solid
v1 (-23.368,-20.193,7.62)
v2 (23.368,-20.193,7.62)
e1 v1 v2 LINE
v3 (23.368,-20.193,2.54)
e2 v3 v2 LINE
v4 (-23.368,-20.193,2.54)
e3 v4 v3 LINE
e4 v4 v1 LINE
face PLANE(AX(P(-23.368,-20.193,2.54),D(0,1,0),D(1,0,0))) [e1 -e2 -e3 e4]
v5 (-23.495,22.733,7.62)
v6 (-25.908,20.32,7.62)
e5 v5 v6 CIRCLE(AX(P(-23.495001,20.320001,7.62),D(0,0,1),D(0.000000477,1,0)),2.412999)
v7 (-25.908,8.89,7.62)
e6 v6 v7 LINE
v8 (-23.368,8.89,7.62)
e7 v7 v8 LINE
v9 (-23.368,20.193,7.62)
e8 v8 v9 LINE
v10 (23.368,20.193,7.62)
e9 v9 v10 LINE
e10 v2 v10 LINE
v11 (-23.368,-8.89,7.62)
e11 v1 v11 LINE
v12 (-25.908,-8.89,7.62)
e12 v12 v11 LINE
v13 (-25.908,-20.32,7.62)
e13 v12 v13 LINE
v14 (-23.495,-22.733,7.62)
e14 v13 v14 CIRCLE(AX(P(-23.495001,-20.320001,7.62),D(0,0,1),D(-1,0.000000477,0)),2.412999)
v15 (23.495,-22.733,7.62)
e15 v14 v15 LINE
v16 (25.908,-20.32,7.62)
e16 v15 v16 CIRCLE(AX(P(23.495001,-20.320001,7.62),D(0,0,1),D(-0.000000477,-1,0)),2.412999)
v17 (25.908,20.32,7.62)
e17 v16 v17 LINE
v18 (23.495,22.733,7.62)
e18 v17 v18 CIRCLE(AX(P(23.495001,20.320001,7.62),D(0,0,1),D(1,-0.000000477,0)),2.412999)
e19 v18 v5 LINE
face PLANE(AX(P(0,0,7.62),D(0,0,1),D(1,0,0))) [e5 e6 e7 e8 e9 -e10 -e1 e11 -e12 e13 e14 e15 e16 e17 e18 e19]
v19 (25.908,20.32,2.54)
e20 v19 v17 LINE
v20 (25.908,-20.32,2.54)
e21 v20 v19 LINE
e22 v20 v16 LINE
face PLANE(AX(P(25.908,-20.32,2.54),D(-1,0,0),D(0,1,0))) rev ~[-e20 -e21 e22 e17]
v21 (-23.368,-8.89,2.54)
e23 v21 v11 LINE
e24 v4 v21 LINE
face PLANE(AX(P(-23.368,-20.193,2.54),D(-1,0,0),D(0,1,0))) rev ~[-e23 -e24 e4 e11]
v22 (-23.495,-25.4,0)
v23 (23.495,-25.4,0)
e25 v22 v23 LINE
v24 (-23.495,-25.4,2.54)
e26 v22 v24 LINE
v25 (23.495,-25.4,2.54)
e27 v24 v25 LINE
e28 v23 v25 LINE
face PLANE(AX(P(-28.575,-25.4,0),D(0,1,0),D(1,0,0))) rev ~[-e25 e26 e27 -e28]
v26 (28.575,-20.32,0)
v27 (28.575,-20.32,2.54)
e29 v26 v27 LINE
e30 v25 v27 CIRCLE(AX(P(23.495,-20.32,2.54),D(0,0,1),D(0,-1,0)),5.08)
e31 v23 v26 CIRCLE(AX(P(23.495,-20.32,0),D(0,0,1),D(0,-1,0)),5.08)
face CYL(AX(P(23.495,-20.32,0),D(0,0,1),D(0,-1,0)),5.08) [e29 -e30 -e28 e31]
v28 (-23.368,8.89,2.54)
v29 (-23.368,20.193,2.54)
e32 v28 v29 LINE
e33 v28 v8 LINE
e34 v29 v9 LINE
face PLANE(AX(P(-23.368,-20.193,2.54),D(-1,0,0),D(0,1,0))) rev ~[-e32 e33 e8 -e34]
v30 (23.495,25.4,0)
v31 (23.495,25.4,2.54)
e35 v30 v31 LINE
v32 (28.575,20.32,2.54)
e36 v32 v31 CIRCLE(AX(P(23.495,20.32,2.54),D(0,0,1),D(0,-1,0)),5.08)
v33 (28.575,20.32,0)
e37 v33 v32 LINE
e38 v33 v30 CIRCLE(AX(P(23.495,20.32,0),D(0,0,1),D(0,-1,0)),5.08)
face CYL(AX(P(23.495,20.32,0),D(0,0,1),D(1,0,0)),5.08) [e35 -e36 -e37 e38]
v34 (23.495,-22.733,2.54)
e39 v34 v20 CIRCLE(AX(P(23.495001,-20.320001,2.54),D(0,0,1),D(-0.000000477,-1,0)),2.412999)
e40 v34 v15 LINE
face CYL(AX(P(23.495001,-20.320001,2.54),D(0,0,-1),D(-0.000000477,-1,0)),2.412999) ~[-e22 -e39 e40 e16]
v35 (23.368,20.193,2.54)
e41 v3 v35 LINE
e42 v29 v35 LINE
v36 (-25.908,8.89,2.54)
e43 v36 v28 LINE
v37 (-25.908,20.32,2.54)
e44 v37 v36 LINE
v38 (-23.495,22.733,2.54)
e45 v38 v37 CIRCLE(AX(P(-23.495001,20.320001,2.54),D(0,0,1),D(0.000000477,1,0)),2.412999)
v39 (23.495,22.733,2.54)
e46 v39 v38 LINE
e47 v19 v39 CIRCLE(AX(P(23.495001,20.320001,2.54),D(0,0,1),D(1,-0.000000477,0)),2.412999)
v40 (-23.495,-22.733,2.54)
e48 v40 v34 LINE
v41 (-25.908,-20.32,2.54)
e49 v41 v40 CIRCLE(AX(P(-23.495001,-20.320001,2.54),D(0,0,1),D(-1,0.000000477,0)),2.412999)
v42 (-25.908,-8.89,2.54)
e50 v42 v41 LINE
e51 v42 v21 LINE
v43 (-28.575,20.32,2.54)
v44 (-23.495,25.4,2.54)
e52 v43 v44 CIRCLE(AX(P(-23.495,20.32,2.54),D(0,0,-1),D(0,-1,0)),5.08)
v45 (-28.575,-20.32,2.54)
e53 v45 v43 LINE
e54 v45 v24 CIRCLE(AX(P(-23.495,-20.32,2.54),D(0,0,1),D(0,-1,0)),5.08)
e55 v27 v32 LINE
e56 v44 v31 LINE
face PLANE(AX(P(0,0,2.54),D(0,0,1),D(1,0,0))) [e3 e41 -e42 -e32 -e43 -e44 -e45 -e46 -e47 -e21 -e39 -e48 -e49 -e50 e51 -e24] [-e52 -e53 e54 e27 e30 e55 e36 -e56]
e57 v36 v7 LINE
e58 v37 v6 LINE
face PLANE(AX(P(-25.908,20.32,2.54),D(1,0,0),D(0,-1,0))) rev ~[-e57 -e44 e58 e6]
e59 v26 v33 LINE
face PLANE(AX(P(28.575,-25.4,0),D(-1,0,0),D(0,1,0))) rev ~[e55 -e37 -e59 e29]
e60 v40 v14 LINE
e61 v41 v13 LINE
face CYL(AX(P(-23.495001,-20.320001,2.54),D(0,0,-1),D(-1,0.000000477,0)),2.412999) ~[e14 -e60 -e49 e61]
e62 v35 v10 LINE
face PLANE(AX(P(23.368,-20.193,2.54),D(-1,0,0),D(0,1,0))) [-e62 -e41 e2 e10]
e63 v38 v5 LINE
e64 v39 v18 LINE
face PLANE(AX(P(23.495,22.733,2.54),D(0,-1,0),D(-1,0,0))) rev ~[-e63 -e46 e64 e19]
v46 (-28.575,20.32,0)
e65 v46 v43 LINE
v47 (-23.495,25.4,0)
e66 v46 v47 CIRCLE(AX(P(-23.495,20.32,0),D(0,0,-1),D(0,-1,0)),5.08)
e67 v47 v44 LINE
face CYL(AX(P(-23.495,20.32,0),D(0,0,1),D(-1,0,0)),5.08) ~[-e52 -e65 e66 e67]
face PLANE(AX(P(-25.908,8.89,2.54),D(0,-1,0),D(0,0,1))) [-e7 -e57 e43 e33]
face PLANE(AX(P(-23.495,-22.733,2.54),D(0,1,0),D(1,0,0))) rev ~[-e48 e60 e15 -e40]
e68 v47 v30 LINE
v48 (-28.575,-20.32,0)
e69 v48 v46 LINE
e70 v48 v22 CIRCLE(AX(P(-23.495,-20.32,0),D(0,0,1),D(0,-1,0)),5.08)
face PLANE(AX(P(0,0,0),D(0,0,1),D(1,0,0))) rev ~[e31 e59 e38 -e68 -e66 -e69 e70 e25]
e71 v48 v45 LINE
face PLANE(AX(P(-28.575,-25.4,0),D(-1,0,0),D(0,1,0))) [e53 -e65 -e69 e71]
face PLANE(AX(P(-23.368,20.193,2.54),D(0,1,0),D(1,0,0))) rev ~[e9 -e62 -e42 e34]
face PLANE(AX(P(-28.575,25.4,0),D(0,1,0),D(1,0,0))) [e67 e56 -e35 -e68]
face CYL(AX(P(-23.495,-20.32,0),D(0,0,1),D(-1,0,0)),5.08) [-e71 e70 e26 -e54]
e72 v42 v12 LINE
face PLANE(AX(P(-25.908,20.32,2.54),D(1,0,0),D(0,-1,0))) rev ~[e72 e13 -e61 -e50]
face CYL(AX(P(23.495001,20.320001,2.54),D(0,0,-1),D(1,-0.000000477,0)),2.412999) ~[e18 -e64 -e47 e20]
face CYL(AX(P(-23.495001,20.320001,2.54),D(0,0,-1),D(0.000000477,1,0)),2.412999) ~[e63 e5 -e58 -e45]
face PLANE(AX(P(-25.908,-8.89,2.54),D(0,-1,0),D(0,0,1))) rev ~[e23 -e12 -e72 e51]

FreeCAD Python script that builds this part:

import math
import FreeCAD as App
import Part
import Sketcher
from FreeCAD import Vector
Q = App.Units.Quantity


def edges_at(feature, points):
    """Names of the edges that pass closest to the given points."""
    edges = feature.Shape.Edges
    near = lambda p: min(range(len(edges)), key=lambda i: edges[i].distToShape(Part.Vertex(*p))[0])
    return sorted({f"Edge{near(p) + 1}" for p in points})

doc = App.newDocument("Part")
body = doc.addObject("PartDesign::Body", "Body")

# Sketch on XY plane
sketch1 = body.newObject("Sketcher::SketchObject", "Sketch")
sketch1.AttachmentSupport = (doc.getObject("XY_Plane"), [""])
sketch1.MapMode = "FlatFace"
sketch1.addGeometry([
    Part.LineSegment(Vector(-28.575, 25.4, 0), Vector(-28.575, -25.4, 0)),
    Part.LineSegment(Vector(-28.575, -25.4, 0), Vector(28.575, -25.4, 0)),
    Part.LineSegment(Vector(28.575, -25.4, 0), Vector(28.575, 25.4, 0)),
    Part.LineSegment(Vector(28.575, 25.4, 0), Vector(-28.575, 25.4, 0)),
], False)
sketch1.addConstraint([
    Sketcher.Constraint("Coincident", 0, 2, 1, 1),
    Sketcher.Constraint("Coincident", 1, 2, 2, 1),
    Sketcher.Constraint("Coincident", 2, 2, 3, 1),
    Sketcher.Constraint("Coincident", 3, 2, 0, 1),
    Sketcher.Constraint("Vertical", 0),
    Sketcher.Constraint("Horizontal", 1),
    Sketcher.Constraint("Vertical", 2),
    Sketcher.Constraint("Horizontal", 3),
    Sketcher.Constraint("Symmetric", 0, 2, 2, 2, -1, 1),
    Sketcher.Constraint("DistanceY", 0, 2, 0, 1, Q("2 in")),
    Sketcher.Constraint("DistanceX", 1, 1, 1, 2, Q("2.25 in")),
])
pad1 = body.newObject("PartDesign::Pad", "Pad")
pad1.Profile = sketch1
pad1.Length = Q("0.1 in")
doc.recompute()

fillet = body.newObject("PartDesign::Fillet", "Fillet")
fillet.Base = (pad1, edges_at(pad1, [
    (-28.575, 25.4, 1.27),
    (28.575, 25.4, 1.27),
    (28.575, -25.4, 1.27),
    (-28.575, -25.4, 1.27),
]))
fillet.Radius = Q("0.2 in")

# Sketch on XY plane
sketch2 = body.newObject("Sketcher::SketchObject", "Sketch001")
sketch2.AttachmentSupport = (doc.getObject("XY_Plane"), [""])
sketch2.MapMode = "FlatFace"
sketch2.AttachmentOffset = App.Placement(Vector(0, 0, 0.1 * 25.4), App.Rotation())
sketch2.addGeometry([
    Part.LineSegment(Vector(25.908, -20.32, 0), Vector(25.908, 20.32, 0)),  # 0
    Part.ArcOfCircle(Part.Circle(Vector(23.495001, 20.320001, 0), Vector(0, 0, 1), 2.412999), math.radians(-0.000027), math.radians(90.000027)),  # 1
    Part.LineSegment(Vector(23.495, 22.733, 0), Vector(-23.495, 22.733, 0)),  # 2
    Part.ArcOfCircle(Part.Circle(Vector(-23.495001, 20.320001, 0), Vector(0, 0, 1), 2.412999), math.radians(89.999973), math.radians(180.000027)),  # 3
    Part.LineSegment(Vector(-25.908, 20.32, 0), Vector(-25.908, -20.32, 0)),  # 4
    Part.ArcOfCircle(Part.Circle(Vector(-23.495001, -20.320001, 0), Vector(0, 0, 1), 2.412999), math.radians(179.999973), math.radians(270.000027)),  # 5
    Part.LineSegment(Vector(-23.495, -22.733, 0), Vector(23.495, -22.733, 0)),  # 6
    Part.ArcOfCircle(Part.Circle(Vector(23.495001, -20.320001, 0), Vector(0, 0, 1), 2.412999), math.radians(-90.000027), math.radians(0.000027)),  # 7
    Part.LineSegment(Vector(23.368, -20.193, 0), Vector(-23.368, -20.193, 0)),  # 8
    Part.LineSegment(Vector(-23.368, -20.193, 0), Vector(-23.368, 20.193, 0)),  # 9
    Part.LineSegment(Vector(-23.368, 20.193, 0), Vector(23.368, 20.193, 0)),  # 10
    Part.LineSegment(Vector(23.368, 20.193, 0), Vector(23.368, -20.193, 0)),  # 11
], False)
sketch2.addConstraint([
    Sketcher.Constraint("Tangent", 0, 2, 1, 1),
    Sketcher.Constraint("Tangent", 1, 2, 2, 1),
    Sketcher.Constraint("Tangent", 2, 2, 3, 1),
    Sketcher.Constraint("Tangent", 3, 2, 4, 1),
    Sketcher.Constraint("Tangent", 4, 2, 5, 1),
    Sketcher.Constraint("Tangent", 5, 2, 6, 1),
    Sketcher.Constraint("Tangent", 6, 2, 7, 1),
    Sketcher.Constraint("Tangent", 7, 2, 0, 1),
    Sketcher.Constraint("Coincident", 8, 2, 9, 1),
    Sketcher.Constraint("Coincident", 9, 2, 10, 1),
    Sketcher.Constraint("Coincident", 10, 2, 11, 1),
    Sketcher.Constraint("Coincident", 11, 2, 8, 1),
    Sketcher.Constraint("Vertical", 0),
    Sketcher.Constraint("Horizontal", 2),
    Sketcher.Constraint("Vertical", 4),
    Sketcher.Constraint("Horizontal", 6),
    Sketcher.Constraint("Horizontal", 8),
    Sketcher.Constraint("Vertical", 9),
    Sketcher.Constraint("Horizontal", 10),
    Sketcher.Constraint("Vertical", 11),
    Sketcher.Constraint("Equal", 1, 3),
    Sketcher.Constraint("Equal", 3, 5),
    Sketcher.Constraint("Equal", 5, 7),
    Sketcher.Constraint("Symmetric", 1, 3, 5, 3, -1, 1),
    Sketcher.Constraint("Symmetric", 8, 2, 10, 2, -1, 1),
    Sketcher.Constraint("DistanceY", 0, 1, 0, 2, Q("1.6 in")),
    Sketcher.Constraint("Radius", 1, Q("0.095 in")),
    Sketcher.Constraint("DistanceX", 2, 2, 2, 1, Q("1.85 in")),
    Sketcher.Constraint("DistanceX", 8, 2, 8, 1, Q("1.84 in")),
    Sketcher.Constraint("DistanceY", 9, 1, 9, 2, Q("1.59 in")),
])
pad2 = body.newObject("PartDesign::Pad", "Pad001")
pad2.Profile = sketch2
pad2.Length = Q("0.2 in")

# Sketch on YZ plane
sketch3 = body.newObject("Sketcher::SketchObject", "Sketch002")
sketch3.AttachmentSupport = (doc.getObject("YZ_Plane"), [""])
sketch3.MapMode = "FlatFace"
sketch3.AttachmentOffset = App.Placement(Vector(0, 0, -1.02 * 25.4), App.Rotation())
sketch3.addGeometry([
    Part.LineSegment(Vector(8.89, 7.62, 0), Vector(8.89, 2.54, 0)),
    Part.LineSegment(Vector(8.89, 2.54, 0), Vector(-8.89, 2.54, 0)),
    Part.LineSegment(Vector(-8.89, 2.54, 0), Vector(-8.89, 7.62, 0)),
    Part.LineSegment(Vector(-8.89, 7.62, 0), Vector(8.89, 7.62, 0)),
], False)
sketch3.addConstraint([
    Sketcher.Constraint("Coincident", 0, 2, 1, 1),
    Sketcher.Constraint("Coincident", 1, 2, 2, 1),
    Sketcher.Constraint("Coincident", 2, 2, 3, 1),
    Sketcher.Constraint("Coincident", 3, 2, 0, 1),
    Sketcher.Constraint("Vertical", 0),
    Sketcher.Constraint("Horizontal", 1),
    Sketcher.Constraint("Vertical", 2),
    Sketcher.Constraint("Horizontal", 3),
    Sketcher.Constraint("DistanceX", 1, 2, 1, 1, Q("0.7 in")),
    Sketcher.Constraint("DistanceY", 0, 2, 0, 1, Q("0.2 in")),
    Sketcher.Constraint("DistanceY", -1, 1, 0, 2, Q("0.1 in")),
    Sketcher.Constraint("DistanceX", -1, 1, 0, 2, Q("0.35 in")),
])
pocket1 = body.newObject("PartDesign::Pocket", "Pocket")
pocket1.Profile = sketch3
pocket1.Length = Q("0.1 in")
pocket1.Reversed = True

doc.recompute()
